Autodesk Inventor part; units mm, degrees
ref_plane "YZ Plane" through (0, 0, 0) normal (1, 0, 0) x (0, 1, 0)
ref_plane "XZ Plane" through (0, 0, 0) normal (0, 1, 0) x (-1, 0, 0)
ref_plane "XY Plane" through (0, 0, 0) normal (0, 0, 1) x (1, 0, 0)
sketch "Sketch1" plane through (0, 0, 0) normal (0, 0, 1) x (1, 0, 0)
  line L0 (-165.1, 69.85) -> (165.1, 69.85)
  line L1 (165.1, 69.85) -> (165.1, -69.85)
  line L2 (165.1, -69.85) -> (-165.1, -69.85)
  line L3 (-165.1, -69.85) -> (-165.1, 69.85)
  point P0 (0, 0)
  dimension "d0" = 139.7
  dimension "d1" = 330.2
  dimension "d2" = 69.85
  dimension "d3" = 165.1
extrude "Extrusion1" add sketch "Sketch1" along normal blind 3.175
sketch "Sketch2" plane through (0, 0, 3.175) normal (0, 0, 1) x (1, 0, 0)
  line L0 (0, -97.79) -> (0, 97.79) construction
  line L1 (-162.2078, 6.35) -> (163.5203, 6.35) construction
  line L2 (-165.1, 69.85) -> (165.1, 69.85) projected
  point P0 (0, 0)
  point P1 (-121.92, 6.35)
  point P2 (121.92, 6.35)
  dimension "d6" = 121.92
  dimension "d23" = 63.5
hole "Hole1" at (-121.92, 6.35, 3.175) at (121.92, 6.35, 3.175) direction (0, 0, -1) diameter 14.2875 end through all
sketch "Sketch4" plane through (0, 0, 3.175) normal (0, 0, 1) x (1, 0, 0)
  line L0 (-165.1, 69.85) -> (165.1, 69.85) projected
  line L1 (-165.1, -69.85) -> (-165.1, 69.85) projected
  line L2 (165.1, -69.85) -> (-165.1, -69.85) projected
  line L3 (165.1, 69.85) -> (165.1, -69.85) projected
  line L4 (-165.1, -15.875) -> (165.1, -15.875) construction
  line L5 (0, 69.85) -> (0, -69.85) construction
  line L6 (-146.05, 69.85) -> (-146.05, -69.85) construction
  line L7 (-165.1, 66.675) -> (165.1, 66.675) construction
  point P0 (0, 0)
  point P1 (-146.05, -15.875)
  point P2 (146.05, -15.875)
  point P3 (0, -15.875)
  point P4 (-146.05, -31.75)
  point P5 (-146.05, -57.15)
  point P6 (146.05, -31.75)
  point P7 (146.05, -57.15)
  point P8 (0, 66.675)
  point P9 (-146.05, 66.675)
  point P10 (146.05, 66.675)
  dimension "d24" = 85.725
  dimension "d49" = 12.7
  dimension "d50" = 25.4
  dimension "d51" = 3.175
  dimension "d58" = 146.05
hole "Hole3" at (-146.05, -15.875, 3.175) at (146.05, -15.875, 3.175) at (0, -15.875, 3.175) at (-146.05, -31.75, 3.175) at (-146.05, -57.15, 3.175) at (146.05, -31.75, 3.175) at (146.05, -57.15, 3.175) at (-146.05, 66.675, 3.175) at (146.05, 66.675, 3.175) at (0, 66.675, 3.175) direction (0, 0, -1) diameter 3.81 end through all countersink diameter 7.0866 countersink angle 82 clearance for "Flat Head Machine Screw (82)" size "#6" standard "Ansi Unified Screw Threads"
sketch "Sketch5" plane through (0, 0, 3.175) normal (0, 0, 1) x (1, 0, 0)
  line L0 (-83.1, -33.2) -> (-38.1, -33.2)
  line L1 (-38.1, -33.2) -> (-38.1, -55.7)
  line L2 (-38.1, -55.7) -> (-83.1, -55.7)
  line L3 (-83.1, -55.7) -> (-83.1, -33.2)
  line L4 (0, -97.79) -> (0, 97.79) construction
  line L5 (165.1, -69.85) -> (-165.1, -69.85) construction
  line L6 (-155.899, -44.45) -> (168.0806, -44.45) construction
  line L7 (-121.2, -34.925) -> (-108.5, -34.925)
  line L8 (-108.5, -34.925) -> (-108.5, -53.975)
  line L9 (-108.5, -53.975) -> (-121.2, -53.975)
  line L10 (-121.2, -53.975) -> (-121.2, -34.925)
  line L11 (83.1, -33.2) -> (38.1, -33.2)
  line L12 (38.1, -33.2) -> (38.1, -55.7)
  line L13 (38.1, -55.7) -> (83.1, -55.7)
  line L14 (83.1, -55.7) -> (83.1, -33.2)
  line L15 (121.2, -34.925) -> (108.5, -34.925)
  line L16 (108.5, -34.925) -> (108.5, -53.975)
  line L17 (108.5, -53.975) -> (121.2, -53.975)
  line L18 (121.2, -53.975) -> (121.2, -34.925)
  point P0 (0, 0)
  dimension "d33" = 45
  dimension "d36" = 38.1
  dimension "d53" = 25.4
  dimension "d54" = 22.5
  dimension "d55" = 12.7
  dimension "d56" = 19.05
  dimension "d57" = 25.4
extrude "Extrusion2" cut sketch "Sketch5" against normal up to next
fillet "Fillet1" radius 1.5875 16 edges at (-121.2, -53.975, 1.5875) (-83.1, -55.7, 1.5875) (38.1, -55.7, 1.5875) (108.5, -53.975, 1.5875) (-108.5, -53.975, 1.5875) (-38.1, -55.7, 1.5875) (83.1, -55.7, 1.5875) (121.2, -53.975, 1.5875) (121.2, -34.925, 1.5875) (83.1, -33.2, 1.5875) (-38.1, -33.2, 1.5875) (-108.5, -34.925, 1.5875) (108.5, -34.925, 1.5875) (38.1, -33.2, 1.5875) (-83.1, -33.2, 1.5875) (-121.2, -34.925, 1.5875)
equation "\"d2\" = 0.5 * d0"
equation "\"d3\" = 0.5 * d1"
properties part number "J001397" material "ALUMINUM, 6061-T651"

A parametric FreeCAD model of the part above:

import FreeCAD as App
import Part
import Sketcher

V = App.Vector
Q = App.Units.Quantity


def edges_at(feature, points):
    """Names of the edges that pass closest to the given points."""
    edges = feature.Shape.Edges
    near = lambda p: min(range(len(edges)), key=lambda i: edges[i].distToShape(Part.Vertex(*p))[0])
    return sorted({f"Edge{near(p) + 1}" for p in points})

doc = App.newDocument("Part")
body = doc.addObject("PartDesign::Body", "Body")

# Sketch on XY plane
sketch1 = body.newObject("Sketcher::SketchObject", "Sketch")
sketch1.AttachmentSupport = (doc.getObject("XY_Plane"), [""])
sketch1.MapMode = "FlatFace"
sketch1.addGeometry([
    Part.LineSegment(V(165, 70, 0), V(-165, 70, 0)),
    Part.LineSegment(V(-165, 70, 0), V(-165, -70, 0)),
    Part.LineSegment(V(-165, -70, 0), V(165, -70, 0)),
    Part.LineSegment(V(165, -70, 0), V(165, 70, 0)),
], False)
sketch1.addConstraint([
    Sketcher.Constraint("Coincident", 0, 2, 1, 1),
    Sketcher.Constraint("Coincident", 1, 2, 2, 1),
    Sketcher.Constraint("Coincident", 2, 2, 3, 1),
    Sketcher.Constraint("Coincident", 3, 2, 0, 1),
    Sketcher.Constraint("Horizontal", 0),
    Sketcher.Constraint("Vertical", 1),
    Sketcher.Constraint("Horizontal", 2),
    Sketcher.Constraint("Vertical", 3),
    Sketcher.Constraint("Symmetric", 0, 2, 2, 2, -1, 1),
    Sketcher.Constraint("DistanceX", 0, 2, 0, 1, Q("13 in")),
    Sketcher.Constraint("DistanceY", 1, 2, 1, 1, Q("5.5 in")),
])
pad1 = body.newObject("PartDesign::Pad", "Pad")
pad1.Profile = sketch1
pad1.Length = Q("0.125 in")

# Sketch on XY plane
sketch2 = body.newObject("Sketcher::SketchObject", "Sketch001")
sketch2.AttachmentSupport = (doc.getObject("XY_Plane"), [""])
sketch2.MapMode = "FlatFace"
sketch2.AttachmentOffset = App.Placement(V(0, 0, 0.125 * 25.4), App.Rotation())
sketch2.addGeometry([
    Part.Circle(V(-122, 6, 0), V(0, 0, 1), 7),
    Part.Circle(V(122, 6, 0), V(0, 0, 1), 7),
], False)
sketch2.addConstraint([
    Sketcher.Constraint("Equal", 0, 1),
    Sketcher.Constraint("Symmetric", 0, 3, 1, 3, -2),
    Sketcher.Constraint("Diameter", 0, Q("0.5625 in")),
    Sketcher.Constraint("DistanceX", 0, 3, -1, 1, Q("4.8 in")),
    Sketcher.Constraint("DistanceY", -1, 1, 0, 3, Q("0.25 in")),
])
doc.recompute()
hole = body.newObject("PartDesign::Hole", "Hole")
hole.Profile = sketch2
hole.ThreadType = "None"
hole.Diameter = Q("0.5625 in")
hole.DepthType = "ThroughAll"

# Sketch on XY plane
sketch3 = body.newObject("Sketcher::SketchObject", "Sketch002")
sketch3.AttachmentSupport = (doc.getObject("XY_Plane"), [""])
sketch3.MapMode = "FlatFace"
sketch3.AttachmentOffset = App.Placement(V(0, 0, 0.125 * 25.4), App.Rotation())
sketch3.addGeometry([
    Part.Circle(V(-146.1, -15.9, 0), V(0, 0, 1), 1.9),  # 0
    Part.Circle(V(146.1, -15.9, 0), V(0, 0, 1), 1.9),  # 1
    Part.Circle(V(0, -15.9, 0), V(0, 0, 1), 1.9),  # 2
    Part.Circle(V(-146.1, -31.8, 0), V(0, 0, 1), 1.9),  # 3
    Part.Circle(V(-146.1, -57.1, 0), V(0, 0, 1), 1.9),  # 4
    Part.Circle(V(146.1, -31.8, 0), V(0, 0, 1), 1.9),  # 5
    Part.Circle(V(146.1, -57.1, 0), V(0, 0, 1), 1.9),  # 6
    Part.Circle(V(-146.1, 66.7, 0), V(0, 0, 1), 1.9),  # 7
    Part.Circle(V(146.1, 66.7, 0), V(0, 0, 1), 1.9),  # 8
    Part.Circle(V(0, 66.7, 0), V(0, 0, 1), 1.9),  # 9
], False)
sketch3.addConstraint([
    Sketcher.Constraint("Equal", 0, 1),
    Sketcher.Constraint("Equal", 1, 2),
    Sketcher.Constraint("Equal", 2, 3),
    Sketcher.Constraint("Equal", 3, 4),
    Sketcher.Constraint("Equal", 4, 5),
    Sketcher.Constraint("Equal", 5, 6),
    Sketcher.Constraint("Equal", 6, 7),
    Sketcher.Constraint("Equal", 7, 8),
    Sketcher.Constraint("Equal", 8, 9),
    Sketcher.Constraint("Symmetric", 0, 3, 1, 3, -2),
    Sketcher.Constraint("Symmetric", 3, 3, 5, 3, -2),
    Sketcher.Constraint("Symmetric", 4, 3, 6, 3, -2),
    Sketcher.Constraint("Symmetric", 7, 3, 8, 3, -2),
    Sketcher.Constraint("PointOnObject", 2, 3, -2),
    Sketcher.Constraint("PointOnObject", 9, 3, -2),
    Sketcher.Constraint("Horizontal", 1, 3, 2, 3),
    Sketcher.Constraint("Horizontal", 8, 3, 9, 3),
    Sketcher.Constraint("Vertical", 0, 3, 3, 3),
    Sketcher.Constraint("Vertical", 3, 3, 4, 3),
    Sketcher.Constraint("Vertical", 4, 3, 7, 3),
    Sketcher.Constraint("Diameter", 0, Q("0.15 in")),
    Sketcher.Constraint("DistanceY", 4, 3, 3, 3, Q("1 in")),
    Sketcher.Constraint("DistanceX", 0, 3, 1, 3, Q("11.5 in")),
    Sketcher.Constraint("DistanceY", 3, 3, -1, 1, Q("1.25 in")),
    Sketcher.Constraint("DistanceY", 0, 3, 7, 3, Q("3.25 in")),
    Sketcher.Constraint("DistanceY", 0, 3, -1, 1, Q("0.625 in")),
])
doc.recompute()
hole2 = body.newObject("PartDesign::Hole", "Hole001")
hole2.Profile = sketch3
hole2.ThreadType = "None"
hole2.Diameter = Q("0.15 in")
hole2.DepthType = "ThroughAll"
hole2.HoleCutType = "Countersink"
hole2.HoleCutDiameter = Q("0.279 in")
hole2.HoleCutCountersinkAngle = 82

# Sketch on XY plane
sketch4 = body.newObject("Sketcher::SketchObject", "Sketch003")
sketch4.AttachmentSupport = (doc.getObject("XY_Plane"), [""])
sketch4.MapMode = "FlatFace"
sketch4.AttachmentOffset = App.Placement(V(0, 0, 0.125 * 25.4), App.Rotation())
sketch4.addGeometry([
    Part.LineSegment(V(-38, -33, 0), V(-83, -33, 0)),  # 0
    Part.LineSegment(V(-83, -33, 0), V(-83, -56, 0)),  # 1
    Part.LineSegment(V(-83, -56, 0), V(-38, -56, 0)),  # 2
    Part.LineSegment(V(-38, -56, 0), V(-38, -33, 0)),  # 3
    Part.LineSegment(V(-108, -35, 0), V(-121, -35, 0)),  # 4
    Part.LineSegment(V(-121, -35, 0), V(-121, -54, 0)),  # 5
    Part.LineSegment(V(-121, -54, 0), V(-108, -54, 0)),  # 6
    Part.LineSegment(V(-108, -54, 0), V(-108, -35, 0)),  # 7
    Part.LineSegment(V(83, -56, 0), V(83, -33, 0)),  # 8
    Part.LineSegment(V(83, -33, 0), V(38, -33, 0)),  # 9
    Part.LineSegment(V(38, -33, 0), V(38, -56, 0)),  # 10
    Part.LineSegment(V(38, -56, 0), V(83, -56, 0)),  # 11
    Part.LineSegment(V(121, -54, 0), V(121, -35, 0)),  # 12
    Part.LineSegment(V(121, -35, 0), V(108, -35, 0)),  # 13
    Part.LineSegment(V(108, -35, 0), V(108, -54, 0)),  # 14
    Part.LineSegment(V(108, -54, 0), V(121, -54, 0)),  # 15
], False)
sketch4.addConstraint([
    Sketcher.Constraint("Coincident", 0, 2, 1, 1),
    Sketcher.Constraint("Coincident", 1, 2, 2, 1),
    Sketcher.Constraint("Coincident", 2, 2, 3, 1),
    Sketcher.Constraint("Coincident", 3, 2, 0, 1),
    Sketcher.Constraint("Coincident", 4, 2, 5, 1),
    Sketcher.Constraint("Coincident", 5, 2, 6, 1),
    Sketcher.Constraint("Coincident", 6, 2, 7, 1),
    Sketcher.Constraint("Coincident", 7, 2, 4, 1),
    Sketcher.Constraint("Coincident", 8, 2, 9, 1),
    Sketcher.Constraint("Coincident", 9, 2, 10, 1),
    Sketcher.Constraint("Coincident", 10, 2, 11, 1),
    Sketcher.Constraint("Coincident", 11, 2, 8, 1),
    Sketcher.Constraint("Coincident", 12, 2, 13, 1),
    Sketcher.Constraint("Coincident", 13, 2, 14, 1),
    Sketcher.Constraint("Coincident", 14, 2, 15, 1),
    Sketcher.Constraint("Coincident", 15, 2, 12, 1),
    Sketcher.Constraint("Horizontal", 0),
    Sketcher.Constraint("Vertical", 1),
    Sketcher.Constraint("Horizontal", 2),
    Sketcher.Constraint("Vertical", 3),
    Sketcher.Constraint("Horizontal", 4),
    Sketcher.Constraint("Vertical", 5),
    Sketcher.Constraint("Horizontal", 6),
    Sketcher.Constraint("Vertical", 7),
    Sketcher.Constraint("Vertical", 8),
    Sketcher.Constraint("Horizontal", 9),
    Sketcher.Constraint("Vertical", 10),
    Sketcher.Constraint("Horizontal", 11),
    Sketcher.Constraint("Vertical", 12),
    Sketcher.Constraint("Horizontal", 13),
    Sketcher.Constraint("Vertical", 14),
    Sketcher.Constraint("Horizontal", 15),
    Sketcher.Constraint("Symmetric", 0, 2, 8, 2, -2),
    Sketcher.Constraint("Symmetric", 2, 2, 10, 2, -2),
    Sketcher.Constraint("Symmetric", 4, 2, 12, 2, -2),
    Sketcher.Constraint("Symmetric", 6, 2, 14, 2, -2),
    Sketcher.Constraint("DistanceX", 4, 2, 4, 1, Q("0.5 in")),
    Sketcher.Constraint("DistanceX", 6, 2, 1, 2, Q("1 in")),
    Sketcher.Constraint("DistanceY", 5, 2, 5, 1, Q("0.75 in")),
    Sketcher.Constraint("DistanceX", 2, 2, -1, 1, Q("1.5 in")),
    Sketcher.Constraint("DistanceX", 0, 2, 0, 1, Q("45 mm")),
    Sketcher.Constraint("DistanceY", 1, 2, 1, 1, Q("22.5 mm")),
    Sketcher.Constraint("DistanceY", 4, 2, -1, 1, Q("1.375 in")),
    Sketcher.Constraint("DistanceY", 0, 2, -1, 1, Q("33.2 mm")),
])
pocket1 = body.newObject("PartDesign::Pocket", "Pocket")
pocket1.Profile = sketch4
pocket1.Type = "UpToFirst"
doc.recompute()

fillet = body.newObject("PartDesign::Fillet", "Fillet")
fillet.Base = (pocket1, edges_at(pocket1, [
    (-121.2, -53.975, 1.587),
    (-83.1, -55.7, 1.587),
    (38.1, -55.7, 1.587),
    (108.5, -53.975, 1.587),
    (-108.5, -53.975, 1.587),
    (-38.1, -55.7, 1.587),
    (83.1, -55.7, 1.587),
    (121.2, -53.975, 1.587),
    (121.2, -34.925, 1.587),
    (83.1, -33.2, 1.587),
    (-38.1, -33.2, 1.587),
    (-108.5, -34.925, 1.587),
    (108.5, -34.925, 1.587),
    (38.1, -33.2, 1.587),
    (-83.1, -33.2, 1.587),
    (-121.2, -34.925, 1.587),
]))
fillet.Radius = Q("0.0625 in")

doc.recompute()
